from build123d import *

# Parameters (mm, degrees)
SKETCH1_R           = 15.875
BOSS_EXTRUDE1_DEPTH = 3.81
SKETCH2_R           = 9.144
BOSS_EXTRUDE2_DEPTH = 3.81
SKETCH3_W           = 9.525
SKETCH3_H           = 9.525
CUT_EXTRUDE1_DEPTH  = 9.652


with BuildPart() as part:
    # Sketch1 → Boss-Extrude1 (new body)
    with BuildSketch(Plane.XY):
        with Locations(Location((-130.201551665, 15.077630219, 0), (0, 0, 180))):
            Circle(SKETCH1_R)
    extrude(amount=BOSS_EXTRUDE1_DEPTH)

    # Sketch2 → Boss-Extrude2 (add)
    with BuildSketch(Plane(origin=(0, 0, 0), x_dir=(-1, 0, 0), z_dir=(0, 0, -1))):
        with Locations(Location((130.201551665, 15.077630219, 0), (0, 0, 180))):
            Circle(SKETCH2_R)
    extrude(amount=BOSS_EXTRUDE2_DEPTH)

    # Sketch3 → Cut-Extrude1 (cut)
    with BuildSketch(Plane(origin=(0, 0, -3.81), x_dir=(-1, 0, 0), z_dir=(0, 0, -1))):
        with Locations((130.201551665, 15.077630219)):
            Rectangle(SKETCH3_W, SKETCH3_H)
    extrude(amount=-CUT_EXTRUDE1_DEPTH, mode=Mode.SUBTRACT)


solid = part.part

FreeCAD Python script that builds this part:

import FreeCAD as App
import Part
import Sketcher
Q = App.Units.Quantity

doc = App.newDocument("Part")
body = doc.addObject("PartDesign::Body", "Body")

sketch1 = body.newObject("Sketcher::SketchObject", "Sketch")
sketch1.AttachmentSupport = (doc.getObject("XY_Plane"), [""])
sketch1.MapMode = "FlatFace"
sketch1.addGeometry(Part.Circle(App.Vector(-130, 15, 0), App.Vector(0, 0, 1), 16), False)
sketch1.addConstraint([
    Sketcher.Constraint("Diameter", 0, Q("1.25 in")),
    Sketcher.Constraint("DistanceX", 0, 3, -1, 1, 130.201552),
    Sketcher.Constraint("DistanceY", -1, 1, 0, 3, 15.07763),
])
pad1 = body.newObject("PartDesign::Pad", "Pad")
pad1.Profile = sketch1
pad1.Length = Q("0.15 in")

sketch2 = body.newObject("Sketcher::SketchObject", "Sketch001")
sketch2.AttachmentSupport = (doc.getObject("XY_Plane"), [""])
sketch2.MapMode = "FlatFace"
sketch2.addGeometry(Part.Circle(App.Vector(-130, 15, 0), App.Vector(0, 0, 1), 9), False)
sketch2.addConstraint([
    Sketcher.Constraint("Diameter", 0, Q("0.72 in")),
    Sketcher.Constraint("DistanceX", 0, 3, -1, 1, 130.201552),
    Sketcher.Constraint("DistanceY", -1, 1, 0, 3, 15.07763),
])
pad2 = body.newObject("PartDesign::Pad", "Pad001")
pad2.Profile = sketch2
pad2.Length = Q("0.15 in")
pad2.Reversed = True

sketch3 = body.newObject("Sketcher::SketchObject", "Sketch002")
sketch3.AttachmentSupport = (doc.getObject("XY_Plane"), [""])
sketch3.MapMode = "FlatFace"
sketch3.AttachmentOffset = App.Placement(App.Vector(0, 0, -0.15 * 25.4), App.Rotation())
sketch3.addGeometry([
    Part.LineSegment(App.Vector(-125, 20, 0), App.Vector(-125, 10, 0)),
    Part.LineSegment(App.Vector(-125, 10, 0), App.Vector(-135, 10, 0)),
    Part.LineSegment(App.Vector(-135, 10, 0), App.Vector(-135, 20, 0)),
    Part.LineSegment(App.Vector(-135, 20, 0), App.Vector(-125, 20, 0)),
], False)
sketch3.addConstraint([
    Sketcher.Constraint("Coincident", 0, 2, 1, 1),
    Sketcher.Constraint("Coincident", 1, 2, 2, 1),
    Sketcher.Constraint("Coincident", 2, 2, 3, 1),
    Sketcher.Constraint("Coincident", 3, 2, 0, 1),
    Sketcher.Constraint("Vertical", 0),
    Sketcher.Constraint("Horizontal", 1),
    Sketcher.Constraint("Vertical", 2),
    Sketcher.Constraint("Horizontal", 3),
    Sketcher.Constraint("Equal", 3, 0),
    Sketcher.Constraint("DistanceX", 1, 2, 1, 1, Q("0.375 in")),
    Sketcher.Constraint("DistanceX", 0, 2, -1, 1, 125.439052),
    Sketcher.Constraint("DistanceY", -1, 1, 0, 2, 10.31513),
])
pocket1 = body.newObject("PartDesign::Pocket", "Pocket")
pocket1.Profile = sketch3
pocket1.Length = Q("0.38 in")
pocket1.Reversed = True

doc.recompute()
